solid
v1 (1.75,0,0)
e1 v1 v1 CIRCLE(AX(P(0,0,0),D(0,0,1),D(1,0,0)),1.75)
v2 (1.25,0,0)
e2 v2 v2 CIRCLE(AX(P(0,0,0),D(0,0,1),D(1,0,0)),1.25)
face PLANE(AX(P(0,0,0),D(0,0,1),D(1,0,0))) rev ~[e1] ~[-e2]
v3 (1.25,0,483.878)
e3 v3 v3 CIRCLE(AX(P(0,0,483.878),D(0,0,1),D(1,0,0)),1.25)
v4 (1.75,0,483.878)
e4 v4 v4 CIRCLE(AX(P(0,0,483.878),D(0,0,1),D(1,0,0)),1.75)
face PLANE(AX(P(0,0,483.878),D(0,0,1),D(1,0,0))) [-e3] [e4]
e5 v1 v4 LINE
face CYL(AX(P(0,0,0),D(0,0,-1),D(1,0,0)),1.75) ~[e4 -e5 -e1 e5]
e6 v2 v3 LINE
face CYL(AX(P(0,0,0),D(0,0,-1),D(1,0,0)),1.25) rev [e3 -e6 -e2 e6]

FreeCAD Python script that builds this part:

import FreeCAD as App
import Part
import Sketcher

V = App.Vector

doc = App.newDocument("Part")
params = doc.addObject("Spreadsheet::Sheet", "Params")
for row, (alias, value) in enumerate([
    ("sketch1_diameter", "3.5 mm"),
    ("sketch1_diameter2", "2.5 mm"),
    ("pad1_length", "483.878 mm"),
], start=1):
    params.set(f"A{row}", alias)
    params.set(f"B{row}", "=" + value)
    params.setAlias(f"B{row}", alias)

body = doc.addObject("PartDesign::Body", "Body")

# Sketch on XY plane
sketch1 = body.newObject("Sketcher::SketchObject", "Sketch")
sketch1.AttachmentSupport = (doc.getObject("XY_Plane"), [""])
sketch1.MapMode = "FlatFace"
sketch1.addGeometry(Part.Circle(V(0, 0, 0), V(0, 0, 1), 1.75), False)
sketch1.addGeometry(Part.Circle(V(0, 0, 0), V(0, 0, 1), 1.25), False)
sketch1.addConstraint(Sketcher.Constraint("Coincident", 0, 3, -1, 1))
sketch1.addConstraint(Sketcher.Constraint("Coincident", 1, 3, -1, 1))
sketch1.addConstraint(Sketcher.Constraint("Diameter", 0, 3.5))
sketch1.addConstraint(Sketcher.Constraint("Diameter", 1, 2.5))
sketch1.setExpression("Constraints[2]", "Params.sketch1_diameter")
sketch1.setExpression("Constraints[3]", "Params.sketch1_diameter2")
pad1 = body.newObject("PartDesign::Pad", "Pad")
pad1.Profile = sketch1
pad1.setExpression("Length", "Params.pad1_length")

doc.recompute()
